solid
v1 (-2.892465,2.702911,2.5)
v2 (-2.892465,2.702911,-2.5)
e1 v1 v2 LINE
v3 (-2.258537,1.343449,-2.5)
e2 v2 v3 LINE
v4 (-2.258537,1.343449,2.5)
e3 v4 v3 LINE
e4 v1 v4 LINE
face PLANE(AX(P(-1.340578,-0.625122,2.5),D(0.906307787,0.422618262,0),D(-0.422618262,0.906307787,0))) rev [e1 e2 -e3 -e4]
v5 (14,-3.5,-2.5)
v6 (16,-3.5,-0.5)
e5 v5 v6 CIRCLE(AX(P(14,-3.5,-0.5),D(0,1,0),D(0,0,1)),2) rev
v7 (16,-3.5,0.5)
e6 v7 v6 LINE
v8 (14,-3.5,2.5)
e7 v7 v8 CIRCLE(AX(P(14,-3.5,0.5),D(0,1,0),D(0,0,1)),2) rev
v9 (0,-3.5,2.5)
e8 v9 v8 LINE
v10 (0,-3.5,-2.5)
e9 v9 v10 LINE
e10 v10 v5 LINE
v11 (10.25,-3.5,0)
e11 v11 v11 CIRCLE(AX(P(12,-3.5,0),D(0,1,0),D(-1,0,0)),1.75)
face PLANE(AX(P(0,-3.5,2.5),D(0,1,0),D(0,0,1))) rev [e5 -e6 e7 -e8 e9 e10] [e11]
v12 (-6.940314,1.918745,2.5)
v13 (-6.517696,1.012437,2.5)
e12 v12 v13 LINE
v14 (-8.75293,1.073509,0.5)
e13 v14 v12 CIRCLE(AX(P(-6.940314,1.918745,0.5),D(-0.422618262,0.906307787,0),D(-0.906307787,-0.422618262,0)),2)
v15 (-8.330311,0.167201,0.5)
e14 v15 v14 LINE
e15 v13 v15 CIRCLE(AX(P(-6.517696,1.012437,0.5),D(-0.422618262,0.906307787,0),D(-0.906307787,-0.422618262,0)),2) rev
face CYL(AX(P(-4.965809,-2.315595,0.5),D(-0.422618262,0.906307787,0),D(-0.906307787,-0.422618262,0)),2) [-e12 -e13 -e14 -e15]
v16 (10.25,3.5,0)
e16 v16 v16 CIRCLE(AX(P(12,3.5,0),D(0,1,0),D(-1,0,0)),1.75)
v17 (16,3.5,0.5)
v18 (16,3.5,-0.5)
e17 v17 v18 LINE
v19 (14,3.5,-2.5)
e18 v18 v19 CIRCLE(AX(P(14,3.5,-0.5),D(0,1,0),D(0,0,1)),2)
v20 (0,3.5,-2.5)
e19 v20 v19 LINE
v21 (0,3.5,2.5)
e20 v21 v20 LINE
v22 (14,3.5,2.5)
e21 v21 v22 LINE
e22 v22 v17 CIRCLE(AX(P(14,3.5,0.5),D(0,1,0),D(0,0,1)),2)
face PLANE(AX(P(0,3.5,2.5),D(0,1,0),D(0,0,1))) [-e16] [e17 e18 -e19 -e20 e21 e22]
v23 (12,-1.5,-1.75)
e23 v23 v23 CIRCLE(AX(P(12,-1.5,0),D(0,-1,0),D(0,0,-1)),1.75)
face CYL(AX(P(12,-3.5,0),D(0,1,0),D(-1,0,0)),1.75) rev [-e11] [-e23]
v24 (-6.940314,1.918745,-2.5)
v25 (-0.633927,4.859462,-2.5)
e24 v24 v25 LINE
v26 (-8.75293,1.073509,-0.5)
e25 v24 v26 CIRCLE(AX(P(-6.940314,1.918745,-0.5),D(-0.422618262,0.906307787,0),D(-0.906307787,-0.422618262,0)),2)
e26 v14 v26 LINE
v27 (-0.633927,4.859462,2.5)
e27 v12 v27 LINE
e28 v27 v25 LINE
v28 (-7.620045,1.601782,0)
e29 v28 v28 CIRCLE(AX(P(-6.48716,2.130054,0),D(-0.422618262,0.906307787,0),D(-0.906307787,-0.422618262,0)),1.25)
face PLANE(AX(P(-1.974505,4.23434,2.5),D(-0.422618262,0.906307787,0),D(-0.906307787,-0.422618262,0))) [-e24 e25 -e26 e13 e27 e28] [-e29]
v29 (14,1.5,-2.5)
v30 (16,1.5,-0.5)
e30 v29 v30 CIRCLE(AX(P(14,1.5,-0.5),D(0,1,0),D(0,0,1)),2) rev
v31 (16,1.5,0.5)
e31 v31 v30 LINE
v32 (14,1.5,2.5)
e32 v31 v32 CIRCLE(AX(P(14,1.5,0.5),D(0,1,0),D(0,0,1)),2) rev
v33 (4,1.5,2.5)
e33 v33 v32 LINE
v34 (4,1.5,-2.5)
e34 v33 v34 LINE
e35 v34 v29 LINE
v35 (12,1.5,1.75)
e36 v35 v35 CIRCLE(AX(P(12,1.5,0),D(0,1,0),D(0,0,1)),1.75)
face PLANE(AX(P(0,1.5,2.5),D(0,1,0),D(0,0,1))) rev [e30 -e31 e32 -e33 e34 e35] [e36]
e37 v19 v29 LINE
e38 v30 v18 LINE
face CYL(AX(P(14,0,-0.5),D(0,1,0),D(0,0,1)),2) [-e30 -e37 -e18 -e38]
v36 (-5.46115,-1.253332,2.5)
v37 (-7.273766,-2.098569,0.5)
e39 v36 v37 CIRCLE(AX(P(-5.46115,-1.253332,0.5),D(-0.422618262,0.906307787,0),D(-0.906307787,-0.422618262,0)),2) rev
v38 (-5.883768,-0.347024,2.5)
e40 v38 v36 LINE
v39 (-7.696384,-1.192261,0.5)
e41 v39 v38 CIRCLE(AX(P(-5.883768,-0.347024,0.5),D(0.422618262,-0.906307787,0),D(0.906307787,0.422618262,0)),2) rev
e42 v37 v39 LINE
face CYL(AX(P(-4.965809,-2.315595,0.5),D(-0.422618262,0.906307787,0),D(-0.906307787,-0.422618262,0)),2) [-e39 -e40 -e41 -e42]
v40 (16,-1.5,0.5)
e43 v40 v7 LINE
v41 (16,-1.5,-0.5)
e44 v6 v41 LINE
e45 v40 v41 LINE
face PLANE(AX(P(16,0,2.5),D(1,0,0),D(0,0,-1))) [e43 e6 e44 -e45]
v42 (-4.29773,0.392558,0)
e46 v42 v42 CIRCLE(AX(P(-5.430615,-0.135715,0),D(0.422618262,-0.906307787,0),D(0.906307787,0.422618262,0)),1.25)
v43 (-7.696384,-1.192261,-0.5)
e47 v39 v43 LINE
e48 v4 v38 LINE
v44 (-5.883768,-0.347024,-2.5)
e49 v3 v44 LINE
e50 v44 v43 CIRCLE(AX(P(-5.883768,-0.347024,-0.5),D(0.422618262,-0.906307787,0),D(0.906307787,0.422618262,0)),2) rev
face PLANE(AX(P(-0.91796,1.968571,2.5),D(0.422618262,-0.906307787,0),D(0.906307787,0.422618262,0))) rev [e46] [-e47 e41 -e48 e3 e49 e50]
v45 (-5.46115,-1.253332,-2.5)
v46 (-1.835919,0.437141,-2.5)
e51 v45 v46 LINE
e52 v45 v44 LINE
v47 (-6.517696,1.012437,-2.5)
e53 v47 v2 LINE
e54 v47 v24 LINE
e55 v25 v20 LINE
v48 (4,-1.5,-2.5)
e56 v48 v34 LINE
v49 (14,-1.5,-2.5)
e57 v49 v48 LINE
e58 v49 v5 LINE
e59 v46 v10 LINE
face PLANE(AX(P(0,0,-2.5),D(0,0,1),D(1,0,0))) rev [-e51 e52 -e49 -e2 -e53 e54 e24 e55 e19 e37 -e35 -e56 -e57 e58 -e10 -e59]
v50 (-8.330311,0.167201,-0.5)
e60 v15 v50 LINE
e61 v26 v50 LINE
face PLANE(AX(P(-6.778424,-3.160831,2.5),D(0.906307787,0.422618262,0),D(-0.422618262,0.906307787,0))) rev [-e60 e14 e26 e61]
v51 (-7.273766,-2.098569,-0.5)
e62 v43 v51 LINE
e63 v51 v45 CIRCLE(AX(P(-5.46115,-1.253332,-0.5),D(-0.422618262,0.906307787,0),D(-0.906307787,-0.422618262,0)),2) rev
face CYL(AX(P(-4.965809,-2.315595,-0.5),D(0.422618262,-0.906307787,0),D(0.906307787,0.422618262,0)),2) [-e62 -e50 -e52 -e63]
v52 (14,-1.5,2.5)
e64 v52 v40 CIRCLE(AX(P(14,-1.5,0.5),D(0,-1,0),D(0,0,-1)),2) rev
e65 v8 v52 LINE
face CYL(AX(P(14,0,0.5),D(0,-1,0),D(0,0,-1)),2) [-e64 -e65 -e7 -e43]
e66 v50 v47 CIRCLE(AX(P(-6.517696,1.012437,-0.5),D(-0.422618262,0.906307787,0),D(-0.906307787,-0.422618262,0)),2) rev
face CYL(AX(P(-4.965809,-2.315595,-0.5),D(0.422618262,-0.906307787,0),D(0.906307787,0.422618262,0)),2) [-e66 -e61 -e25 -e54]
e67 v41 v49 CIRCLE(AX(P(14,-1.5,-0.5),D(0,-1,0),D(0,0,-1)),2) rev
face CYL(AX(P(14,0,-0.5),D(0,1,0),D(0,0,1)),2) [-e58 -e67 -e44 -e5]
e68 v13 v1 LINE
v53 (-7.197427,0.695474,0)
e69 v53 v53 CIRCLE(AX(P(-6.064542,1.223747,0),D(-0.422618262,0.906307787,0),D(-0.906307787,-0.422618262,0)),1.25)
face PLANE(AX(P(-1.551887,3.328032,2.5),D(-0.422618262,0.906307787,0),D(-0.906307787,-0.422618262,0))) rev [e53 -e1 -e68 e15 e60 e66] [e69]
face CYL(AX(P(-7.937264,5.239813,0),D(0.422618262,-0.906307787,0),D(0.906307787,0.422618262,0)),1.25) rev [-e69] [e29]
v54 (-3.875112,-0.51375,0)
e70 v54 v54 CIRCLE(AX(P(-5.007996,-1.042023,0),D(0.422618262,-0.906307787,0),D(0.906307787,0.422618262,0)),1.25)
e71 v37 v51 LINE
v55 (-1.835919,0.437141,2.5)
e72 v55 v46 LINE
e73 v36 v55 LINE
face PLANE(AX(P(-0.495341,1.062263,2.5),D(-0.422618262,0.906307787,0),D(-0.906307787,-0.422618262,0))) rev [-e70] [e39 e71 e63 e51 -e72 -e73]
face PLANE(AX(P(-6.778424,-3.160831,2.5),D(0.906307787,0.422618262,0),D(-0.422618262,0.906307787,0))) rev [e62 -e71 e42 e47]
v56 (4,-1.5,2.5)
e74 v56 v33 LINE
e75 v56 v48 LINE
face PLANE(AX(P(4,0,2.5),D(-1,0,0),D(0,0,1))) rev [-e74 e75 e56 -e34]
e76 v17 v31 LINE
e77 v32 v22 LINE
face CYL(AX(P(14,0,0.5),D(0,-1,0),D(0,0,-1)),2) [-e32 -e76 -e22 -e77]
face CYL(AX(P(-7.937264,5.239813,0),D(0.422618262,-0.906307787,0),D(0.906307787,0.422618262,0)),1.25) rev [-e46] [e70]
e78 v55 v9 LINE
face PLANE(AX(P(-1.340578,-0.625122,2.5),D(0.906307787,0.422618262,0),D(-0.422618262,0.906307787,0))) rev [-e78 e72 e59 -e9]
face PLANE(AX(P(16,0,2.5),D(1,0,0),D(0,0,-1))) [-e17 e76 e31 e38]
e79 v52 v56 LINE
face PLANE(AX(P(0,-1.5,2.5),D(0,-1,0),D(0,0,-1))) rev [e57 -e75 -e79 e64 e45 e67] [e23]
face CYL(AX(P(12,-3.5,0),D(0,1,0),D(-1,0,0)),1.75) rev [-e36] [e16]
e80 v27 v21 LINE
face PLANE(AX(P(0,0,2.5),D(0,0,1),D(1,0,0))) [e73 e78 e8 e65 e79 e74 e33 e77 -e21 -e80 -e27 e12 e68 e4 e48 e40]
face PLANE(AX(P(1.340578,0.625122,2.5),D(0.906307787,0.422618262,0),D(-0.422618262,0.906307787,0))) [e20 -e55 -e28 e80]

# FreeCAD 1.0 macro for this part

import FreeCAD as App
import Part
import Sketcher
Q = App.Units.Quantity


def edges_at(feature, points):
    """Names of the edges that pass closest to the given points."""
    edges = feature.Shape.Edges
    near = lambda p: min(range(len(edges)), key=lambda i: edges[i].distToShape(Part.Vertex(*p))[0])
    return sorted({f"Edge{near(p) + 1}" for p in points})

doc = App.newDocument("Part")
body = doc.addObject("PartDesign::Body", "Body")

sketch1 = body.newObject("Sketcher::SketchObject", "Sketch")
sketch1.AttachmentSupport = (doc.getObject("XY_Plane"), [""])
sketch1.MapMode = "FlatFace"
sketch1.addGeometry([
    Part.LineSegment(App.Vector(16, -3.5, 0), App.Vector(16, -1.5, 0)),
    Part.LineSegment(App.Vector(16, -1.5, 0), App.Vector(4, -1.5, 0)),
    Part.LineSegment(App.Vector(4, -1.5, 0), App.Vector(4, 1.5, 0)),
    Part.LineSegment(App.Vector(4, 1.5, 0), App.Vector(16, 1.5, 0)),
    Part.LineSegment(App.Vector(16, 1.5, 0), App.Vector(16, 3.5, 0)),
    Part.LineSegment(App.Vector(16, 3.5, 0), App.Vector(0, 3.5, 0)),
    Part.LineSegment(App.Vector(0, 3.5, 0), App.Vector(-0.6, 4.9, 0)),
    Part.LineSegment(App.Vector(-0.6, 4.9, 0), App.Vector(-8.8, 1.1, 0)),
    Part.LineSegment(App.Vector(-8.8, 1.1, 0), App.Vector(-8.3, 0.2, 0)),
    Part.LineSegment(App.Vector(-8.3, 0.2, 0), App.Vector(-2.9, 2.7, 0)),
    Part.LineSegment(App.Vector(-2.9, 2.7, 0), App.Vector(-2.3, 1.3, 0)),
    Part.LineSegment(App.Vector(-2.3, 1.3, 0), App.Vector(-7.7, -1.2, 0)),
    Part.LineSegment(App.Vector(-7.7, -1.2, 0), App.Vector(-7.3, -2.1, 0)),
    Part.LineSegment(App.Vector(-7.3, -2.1, 0), App.Vector(-1.8, 0.4, 0)),
    Part.LineSegment(App.Vector(-1.8, 0.4, 0), App.Vector(0, -3.5, 0)),
    Part.LineSegment(App.Vector(0, -3.5, 0), App.Vector(16, -3.5, 0)),
], False)
sketch1.addConstraint([
    Sketcher.Constraint("Coincident", 0, 2, 1, 1),
    Sketcher.Constraint("Coincident", 1, 2, 2, 1),
    Sketcher.Constraint("Coincident", 2, 2, 3, 1),
    Sketcher.Constraint("Coincident", 3, 2, 4, 1),
    Sketcher.Constraint("Coincident", 4, 2, 5, 1),
    Sketcher.Constraint("Coincident", 5, 2, 6, 1),
    Sketcher.Constraint("Coincident", 6, 2, 7, 1),
    Sketcher.Constraint("Coincident", 7, 2, 8, 1),
    Sketcher.Constraint("Coincident", 8, 2, 9, 1),
    Sketcher.Constraint("Coincident", 9, 2, 10, 1),
    Sketcher.Constraint("Coincident", 10, 2, 11, 1),
    Sketcher.Constraint("Coincident", 11, 2, 12, 1),
    Sketcher.Constraint("Coincident", 12, 2, 13, 1),
    Sketcher.Constraint("Coincident", 13, 2, 14, 1),
    Sketcher.Constraint("Coincident", 14, 2, 15, 1),
    Sketcher.Constraint("Coincident", 15, 2, 0, 1),
    Sketcher.Constraint("Vertical", 0),
    Sketcher.Constraint("Horizontal", 1),
    Sketcher.Constraint("Vertical", 2),
    Sketcher.Constraint("Horizontal", 3),
    Sketcher.Constraint("Vertical", 4),
    Sketcher.Constraint("Horizontal", 5),
    Sketcher.Constraint("Horizontal", 15),
    Sketcher.Constraint("Symmetric", 5, 2, 14, 2, -1, 1),
    Sketcher.Constraint("Symmetric", 0, 2, 3, 2, -1),
    Sketcher.Constraint("PointOnObject", 5, 2, -2),
    Sketcher.Constraint("Perpendicular", 6, 7),
    Sketcher.Constraint("Perpendicular", 7, 8),
    Sketcher.Constraint("Perpendicular", 8, 9),
    Sketcher.Constraint("Perpendicular", 9, 10),
    Sketcher.Constraint("Perpendicular", 10, 11),
    Sketcher.Constraint("Perpendicular", 11, 12),
    Sketcher.Constraint("Perpendicular", 12, 13),
    Sketcher.Constraint("Perpendicular", 13, 14),
    Sketcher.Constraint("Equal", 6, 10),
    Sketcher.Constraint("Equal", 9, 11),
    Sketcher.Constraint("Equal", 8, 12),
    Sketcher.Constraint("Equal", 11, 13),
    Sketcher.Constraint("DistanceX", 1, 2, 1, 1, 12.0),
    Sketcher.Constraint("DistanceX", 5, 2, 5, 1, 16.0),
    Sketcher.Constraint("DistanceY", 0, 1, 0, 2, 2.0),
    Sketcher.Constraint("DistanceY", 2, 1, 2, 2, 3.0),
    Sketcher.Constraint("Angle", 6, Q("115 deg")),
    Sketcher.Constraint("Distance", 8, 1.0),
    Sketcher.Constraint("Distance", 9, 6.0),
    Sketcher.Constraint("Distance", 6, 1.5),
])
pad1 = body.newObject("PartDesign::Pad", "Pad")
pad1.Profile = sketch1
pad1.Length = 5
pad1.Midplane = True

sketch2 = body.newObject("Sketcher::SketchObject", "Sketch001")
sketch2.Placement = App.Placement(App.Vector(-0.495341, 1.062263, 0), App.Rotation(App.Vector(0.906307787, 0.422618262, 0), App.Vector(0, 0, 1), App.Vector(0.422618262, -0.906307787, 0), "ZXY"))
sketch2.addGeometry(Part.Circle(App.Vector(-5, 0, 0), App.Vector(0, 0, 1), 1.2), False)
sketch2.addConstraint([
    Sketcher.Constraint("PointOnObject", 0, 3, -1),
    Sketcher.Constraint("Diameter", 0, 2.5),
    Sketcher.Constraint("DistanceX", 0, 3, -1, 1, 4.979164),
])
pocket1 = body.newObject("PartDesign::Pocket", "Pocket")
pocket1.Profile = sketch2
pocket1.Type = "ThroughAll"

sketch3 = body.newObject("Sketcher::SketchObject", "Sketch002")
sketch3.AttachmentSupport = (doc.getObject("XZ_Plane"), [""])
sketch3.MapMode = "FlatFace"
sketch3.AttachmentOffset = App.Placement(App.Vector(0, 0, -3.5), App.Rotation())
sketch3.addGeometry(Part.Circle(App.Vector(12, 0, 0), App.Vector(0, 0, 1), 1.8), False)
sketch3.addConstraint([
    Sketcher.Constraint("PointOnObject", 0, 3, -1),
    Sketcher.Constraint("Diameter", 0, 3.5),
    Sketcher.Constraint("DistanceX", -1, 1, 0, 3, 12.0),
])
pocket2 = body.newObject("PartDesign::Pocket", "Pocket001")
pocket2.Profile = sketch3
pocket2.Type = "ThroughAll"
pocket2.Reversed = True
doc.recompute()

fillet = body.newObject("PartDesign::Fillet", "Fillet")
fillet.Base = (pocket2, edges_at(pocket2, [
    (-7.485, -1.645, -2.5),
    (-8.542, 0.62, -2.5),
    (16, 2.5, -2.5),
    (16, -2.5, -2.5),
    (16, 2.5, 2.5),
    (-8.542, 0.62, 2.5),
    (16, -2.5, 2.5),
    (-7.485, -1.645, 2.5),
]))
fillet.Radius = 2

doc.recompute()
